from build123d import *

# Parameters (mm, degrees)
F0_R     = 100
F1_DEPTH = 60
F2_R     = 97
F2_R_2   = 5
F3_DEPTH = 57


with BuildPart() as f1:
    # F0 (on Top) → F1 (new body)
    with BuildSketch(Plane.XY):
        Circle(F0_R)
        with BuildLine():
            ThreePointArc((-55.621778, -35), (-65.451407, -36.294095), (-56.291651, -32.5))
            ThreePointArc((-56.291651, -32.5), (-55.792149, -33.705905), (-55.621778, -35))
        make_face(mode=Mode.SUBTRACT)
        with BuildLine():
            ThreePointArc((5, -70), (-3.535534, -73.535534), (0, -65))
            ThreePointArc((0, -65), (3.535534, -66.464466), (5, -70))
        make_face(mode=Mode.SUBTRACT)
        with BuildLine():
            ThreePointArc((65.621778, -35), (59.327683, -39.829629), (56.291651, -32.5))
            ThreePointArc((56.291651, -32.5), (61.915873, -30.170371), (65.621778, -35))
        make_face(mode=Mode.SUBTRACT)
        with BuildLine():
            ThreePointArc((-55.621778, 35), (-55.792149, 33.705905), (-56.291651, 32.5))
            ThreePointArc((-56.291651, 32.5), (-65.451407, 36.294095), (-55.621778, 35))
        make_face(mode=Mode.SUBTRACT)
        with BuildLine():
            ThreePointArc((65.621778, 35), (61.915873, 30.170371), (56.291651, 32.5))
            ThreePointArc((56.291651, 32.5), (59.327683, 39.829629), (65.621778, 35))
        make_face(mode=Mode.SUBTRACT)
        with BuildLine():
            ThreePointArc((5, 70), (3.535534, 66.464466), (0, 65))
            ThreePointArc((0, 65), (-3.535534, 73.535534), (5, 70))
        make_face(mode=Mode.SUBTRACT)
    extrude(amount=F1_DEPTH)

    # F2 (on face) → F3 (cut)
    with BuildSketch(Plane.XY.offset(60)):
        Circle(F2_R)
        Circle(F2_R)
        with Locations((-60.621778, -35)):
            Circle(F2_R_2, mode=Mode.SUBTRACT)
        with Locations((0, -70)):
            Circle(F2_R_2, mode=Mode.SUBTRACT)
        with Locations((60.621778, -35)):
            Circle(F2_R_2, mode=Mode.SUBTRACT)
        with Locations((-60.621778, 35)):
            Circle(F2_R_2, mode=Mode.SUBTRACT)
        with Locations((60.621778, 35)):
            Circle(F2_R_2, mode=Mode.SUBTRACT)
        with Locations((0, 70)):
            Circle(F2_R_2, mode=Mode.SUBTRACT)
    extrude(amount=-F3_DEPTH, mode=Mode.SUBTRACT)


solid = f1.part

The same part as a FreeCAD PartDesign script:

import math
import FreeCAD as App
import Part
import Sketcher

doc = App.newDocument("Part")
params = doc.addObject("Spreadsheet::Sheet", "Params")
for row, (alias, value) in enumerate([
    ("sketch1_diameter", "200 mm"),
    ("sketch1_radius", "5 mm"),
    ("pad1_length", "60 mm"),
    ("sketch2_diameter", "194 mm"),
    ("sketch2_diameter2", "10 mm"),
    ("pocket1_length", "57 mm"),
], start=1):
    params.set(f"A{row}", alias)
    params.set(f"B{row}", "=" + value)
    params.setAlias(f"B{row}", alias)

body = doc.addObject("PartDesign::Body", "Body")

# Sketch on XY plane
sketch1 = body.newObject("Sketcher::SketchObject", "Sketch")
sketch1.AttachmentSupport = (doc.getObject("XY_Plane"), [""])
sketch1.MapMode = "FlatFace"
sketch1.addGeometry(Part.Circle(App.Vector(0, 0, 0), App.Vector(0, 0, 1), 100), False)
sketch1.addGeometry(Part.ArcOfCircle(Part.Circle(App.Vector(0, -70, 0), App.Vector(0, 0, 1), 5), math.radians(-0.000004), math.radians(90.000004)), False)
sketch1.addGeometry(Part.ArcOfCircle(Part.Circle(App.Vector(0, -70, 0), App.Vector(0, 0, 1), 5), math.radians(89.999999), math.radians(360.000001)), False)
sketch1.addGeometry(Part.ArcOfCircle(Part.Circle(App.Vector(-60.621783, -35.000001, 0), App.Vector(0, 0, 1), 5.000005), math.radians(0.000016), math.radians(29.999985)), False)
sketch1.addGeometry(Part.ArcOfCircle(Part.Circle(App.Vector(-60.621778, -35, 0), App.Vector(0, 0, 1), 5), math.radians(30.000001), math.radians(360)), False)
sketch1.addGeometry(Part.ArcOfCircle(Part.Circle(App.Vector(60.621778, -35, 0), App.Vector(0, 0, 1), 5), math.radians(0.000003), math.radians(149.999997)), False)
sketch1.addGeometry(Part.ArcOfCircle(Part.Circle(App.Vector(60.621778, -35, 0), App.Vector(0, 0, 1), 5), math.radians(150.000001), math.radians(359.999998)), False)
sketch1.addGeometry(Part.ArcOfCircle(Part.Circle(App.Vector(-60.621778, 35, 0), App.Vector(0, 0, 1), 5), math.radians(0), math.radians(329.999999)), False)
sketch1.addGeometry(Part.ArcOfCircle(Part.Circle(App.Vector(-60.621783, 35.000001, 0), App.Vector(0, 0, 1), 5.000005), math.radians(-29.999985), math.radians(-0.000016)), False)
sketch1.addGeometry(Part.ArcOfCircle(Part.Circle(App.Vector(0, 70, 0), App.Vector(0, 0, 1), 5), math.radians(-0.000001), math.radians(270.000001)), False)
sketch1.addGeometry(Part.ArcOfCircle(Part.Circle(App.Vector(0, 70, 0), App.Vector(0, 0, 1), 5), math.radians(-90.000004), math.radians(0.000004)), False)
sketch1.addGeometry(Part.ArcOfCircle(Part.Circle(App.Vector(60.621778, 35, 0), App.Vector(0, 0, 1), 5), math.radians(0.000002), math.radians(209.999999)), False)
sketch1.addGeometry(Part.ArcOfCircle(Part.Circle(App.Vector(60.621778, 35, 0), App.Vector(0, 0, 1), 5), math.radians(-149.999997), math.radians(-0.000003)), False)
sketch1.addConstraint(Sketcher.Constraint("Tangent", 1, 1, 2, 2))
sketch1.addConstraint(Sketcher.Constraint("Coincident", 2, 1, 1, 2))
sketch1.addConstraint(Sketcher.Constraint("Tangent", 3, 1, 4, 2))
sketch1.addConstraint(Sketcher.Constraint("Coincident", 4, 1, 3, 2))
sketch1.addConstraint(Sketcher.Constraint("Tangent", 5, 1, 6, 2))
sketch1.addConstraint(Sketcher.Constraint("Coincident", 6, 1, 5, 2))
sketch1.addConstraint(Sketcher.Constraint("Tangent", 7, 1, 8, 2))
sketch1.addConstraint(Sketcher.Constraint("Coincident", 8, 1, 7, 2))
sketch1.addConstraint(Sketcher.Constraint("Tangent", 9, 1, 10, 2))
sketch1.addConstraint(Sketcher.Constraint("Coincident", 10, 1, 9, 2))
sketch1.addConstraint(Sketcher.Constraint("Tangent", 11, 1, 12, 2))
sketch1.addConstraint(Sketcher.Constraint("Coincident", 12, 1, 11, 2))
sketch1.addConstraint(Sketcher.Constraint("Coincident", 0, 3, -1, 1))
sketch1.addConstraint(Sketcher.Constraint("Equal", 2, 4))
sketch1.addConstraint(Sketcher.Constraint("Equal", 4, 5))
sketch1.addConstraint(Sketcher.Constraint("Equal", 6, 7))
sketch1.addConstraint(Sketcher.Constraint("Equal", 7, 9))
sketch1.addConstraint(Sketcher.Constraint("Equal", 10, 11))
sketch1.addConstraint(Sketcher.Constraint("Symmetric", 5, 3, 7, 3, -1, 1))
sketch1.addConstraint(Sketcher.Constraint("Symmetric", 1, 3, 9, 3, -1, 1))
sketch1.addConstraint(Sketcher.Constraint("Symmetric", 3, 3, 11, 3, -1, 1))
sketch1.addConstraint(Sketcher.Constraint("Symmetric", 3, 3, 5, 3, -2))
sketch1.addConstraint(Sketcher.Constraint("Symmetric", 1, 1, 9, 1, -1))
sketch1.addConstraint(Sketcher.Constraint("PointOnObject", 2, 1, -2))
sketch1.addConstraint(Sketcher.Constraint("PointOnObject", 10, 1, -2))
sketch1.addConstraint(Sketcher.Constraint("Horizontal", 2, 3, 1, 1))
sketch1.addConstraint(Sketcher.Constraint("Horizontal", 6, 3, 3, 1))
sketch1.addConstraint(Sketcher.Constraint("Horizontal", 3, 1, 5, 1))
sketch1.addConstraint(Sketcher.Constraint("Horizontal", 4, 1, 6, 1))
sketch1.addConstraint(Sketcher.Constraint("Horizontal", 12, 3, 7, 1))
sketch1.addConstraint(Sketcher.Constraint("Horizontal", 7, 1, 11, 1))
sketch1.addConstraint(Sketcher.Constraint("Horizontal", 8, 1, 12, 1))
sketch1.addConstraint(Sketcher.Constraint("Vertical", 4, 1, 8, 1))
sketch1.addConstraint(Sketcher.Constraint("Diameter", 0, 200.0))
sketch1.addConstraint(Sketcher.Constraint("Radius", 1, 5.0))
sketch1.addConstraint(Sketcher.Constraint("DistanceY", 1, 3, -1, 1, 70.0))
sketch1.addConstraint(Sketcher.Constraint("DistanceY", 3, 3, -1, 1, 35.000001))
sketch1.addConstraint(Sketcher.Constraint("DistanceY", 4, 1, 8, 1, 65.0))
sketch1.addConstraint(Sketcher.Constraint("DistanceX", -1, 1, 6, 3, 60.621778))
sketch1.setExpression("Constraints[33]", "Params.sketch1_diameter")
sketch1.setExpression("Constraints[34]", "Params.sketch1_radius")
pad1 = body.newObject("PartDesign::Pad", "Pad")
pad1.Profile = sketch1
pad1.setExpression("Length", "Params.pad1_length")

# Sketch on XY plane
sketch2 = body.newObject("Sketcher::SketchObject", "Sketch001")
sketch2.AttachmentSupport = (doc.getObject("XY_Plane"), [""])
sketch2.MapMode = "FlatFace"
sketch2.AttachmentOffset = App.Placement(App.Vector(0, 0, 60), App.Rotation())
sketch2.addGeometry(Part.Circle(App.Vector(0, 0, 0), App.Vector(0, 0, 1), 97), False)
sketch2.addGeometry(Part.Circle(App.Vector(0, -70, 0), App.Vector(0, 0, 1), 5), False)
sketch2.addGeometry(Part.Circle(App.Vector(-60.621778, -35, 0), App.Vector(0, 0, 1), 5), False)
sketch2.addGeometry(Part.Circle(App.Vector(60.621778, -35, 0), App.Vector(0, 0, 1), 5), False)
sketch2.addGeometry(Part.Circle(App.Vector(-60.621778, 35, 0), App.Vector(0, 0, 1), 5), False)
sketch2.addGeometry(Part.Circle(App.Vector(0, 70, 0), App.Vector(0, 0, 1), 5), False)
sketch2.addGeometry(Part.Circle(App.Vector(60.621778, 35, 0), App.Vector(0, 0, 1), 5), False)
sketch2.addConstraint(Sketcher.Constraint("Coincident", 0, 3, -1, 1))
sketch2.addConstraint(Sketcher.Constraint("Equal", 1, 2))
sketch2.addConstraint(Sketcher.Constraint("Equal", 2, 3))
sketch2.addConstraint(Sketcher.Constraint("Equal", 3, 4))
sketch2.addConstraint(Sketcher.Constraint("Equal", 4, 5))
sketch2.addConstraint(Sketcher.Constraint("Equal", 5, 6))
sketch2.addConstraint(Sketcher.Constraint("Symmetric", 3, 3, 4, 3, -1, 1))
sketch2.addConstraint(Sketcher.Constraint("Symmetric", 1, 3, 5, 3, -1, 1))
sketch2.addConstraint(Sketcher.Constraint("Symmetric", 2, 3, 6, 3, -1, 1))
sketch2.addConstraint(Sketcher.Constraint("Symmetric", 2, 3, 3, 3, -2))
sketch2.addConstraint(Sketcher.Constraint("PointOnObject", 1, 3, -2))
sketch2.addConstraint(Sketcher.Constraint("Diameter", 0, 194.0))
sketch2.addConstraint(Sketcher.Constraint("Diameter", 1, 10.0))
sketch2.addConstraint(Sketcher.Constraint("DistanceY", 1, 3, -1, 1, 70.0))
sketch2.addConstraint(Sketcher.Constraint("DistanceY", 2, 3, -1, 1, 35.0))
sketch2.addConstraint(Sketcher.Constraint("DistanceX", 2, 3, -1, 1, 60.621778))
sketch2.setExpression("Constraints[11]", "Params.sketch2_diameter")
sketch2.setExpression("Constraints[12]", "Params.sketch2_diameter2")
pocket1 = body.newObject("PartDesign::Pocket", "Pocket")
pocket1.Profile = sketch2
pocket1.setExpression("Length", "Params.pocket1_length")

doc.recompute()
